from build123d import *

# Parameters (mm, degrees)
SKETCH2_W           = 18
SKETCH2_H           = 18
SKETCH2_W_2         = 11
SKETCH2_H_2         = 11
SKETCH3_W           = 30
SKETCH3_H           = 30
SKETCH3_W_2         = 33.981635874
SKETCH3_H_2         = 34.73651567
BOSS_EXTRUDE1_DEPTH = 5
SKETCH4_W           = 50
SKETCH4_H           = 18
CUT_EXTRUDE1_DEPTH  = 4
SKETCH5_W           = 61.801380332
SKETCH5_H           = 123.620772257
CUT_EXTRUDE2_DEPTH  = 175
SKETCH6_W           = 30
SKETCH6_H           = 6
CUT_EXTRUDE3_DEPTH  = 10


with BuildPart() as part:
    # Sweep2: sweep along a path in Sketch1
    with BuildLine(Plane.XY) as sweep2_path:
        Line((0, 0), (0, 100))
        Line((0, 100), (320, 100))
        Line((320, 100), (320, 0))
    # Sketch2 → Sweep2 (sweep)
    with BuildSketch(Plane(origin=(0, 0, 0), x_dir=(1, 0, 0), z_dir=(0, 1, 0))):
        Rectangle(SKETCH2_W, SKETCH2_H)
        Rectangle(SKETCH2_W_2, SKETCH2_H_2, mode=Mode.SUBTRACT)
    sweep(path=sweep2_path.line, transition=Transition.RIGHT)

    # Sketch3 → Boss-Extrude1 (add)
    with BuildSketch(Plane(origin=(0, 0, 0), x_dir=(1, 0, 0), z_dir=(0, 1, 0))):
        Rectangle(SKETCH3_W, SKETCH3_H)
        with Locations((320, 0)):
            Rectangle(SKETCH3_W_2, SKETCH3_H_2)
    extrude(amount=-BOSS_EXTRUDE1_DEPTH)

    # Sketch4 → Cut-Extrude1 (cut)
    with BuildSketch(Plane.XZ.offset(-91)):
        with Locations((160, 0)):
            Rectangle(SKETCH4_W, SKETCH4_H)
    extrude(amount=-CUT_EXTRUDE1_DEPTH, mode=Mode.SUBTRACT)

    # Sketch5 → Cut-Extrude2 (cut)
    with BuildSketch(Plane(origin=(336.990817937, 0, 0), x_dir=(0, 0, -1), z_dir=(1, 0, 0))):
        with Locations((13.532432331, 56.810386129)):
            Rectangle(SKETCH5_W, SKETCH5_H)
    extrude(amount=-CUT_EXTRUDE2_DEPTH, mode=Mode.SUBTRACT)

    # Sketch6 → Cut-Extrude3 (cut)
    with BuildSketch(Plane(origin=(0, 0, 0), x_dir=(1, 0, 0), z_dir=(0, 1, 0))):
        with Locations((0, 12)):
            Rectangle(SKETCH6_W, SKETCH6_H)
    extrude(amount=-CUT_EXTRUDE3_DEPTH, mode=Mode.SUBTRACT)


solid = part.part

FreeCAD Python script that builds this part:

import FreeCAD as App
import Part
import Sketcher
from FreeCAD import Vector


def add_polygon(sketch, points):
    """Adds a closed chain of lines whose ends are joined by coincident constraints."""
    first, n = sketch.GeometryCount, len(points)
    for a, b in zip(points, points[1:] + points[:1]):
        sketch.addGeometry(Part.LineSegment(App.Vector(*a, 0), App.Vector(*b, 0)), False)
    for i in range(n):
        sketch.addConstraint(Sketcher.Constraint("Coincident", first + i, 2, first + (i + 1) % n, 1))

doc = App.newDocument("Part")
params = doc.addObject("Spreadsheet::Sheet", "Params")
for row, (alias, value) in enumerate([
    ("sketch1_width", "18 mm"),
    ("sketch1_width2", "11 mm"),
    ("sketch2_width", "320 mm"),
    ("sketch2_height", "100 mm"),
    ("sketch3_width", "30 mm"),
    ("pad1_length", "5 mm"),
    ("sketch4_width", "50 mm"),
    ("sketch4_height", "18 mm"),
    ("pocket1_length", "4 mm"),
    ("pocket2_length", "175 mm"),
    ("sketch6_width", "30 mm"),
    ("sketch6_height", "6 mm"),
    ("pocket3_length", "10 mm"),
], start=1):
    params.set(f"A{row}", alias)
    params.set(f"B{row}", "=" + value)
    params.setAlias(f"B{row}", alias)

body = doc.addObject("PartDesign::Body", "Body")

sketch1 = body.newObject("Sketcher::SketchObject", "Sketch")
sketch1.AttachmentSupport = (doc.getObject("XZ_Plane"), [""])
sketch1.MapMode = "FlatFace"
add_polygon(sketch1, [(-9, -9), (-9, 9), (9, 9), (9, -9)])
add_polygon(sketch1, [(6, 6), (-6, 6), (-6, -6), (6, -6)])
sketch1.addConstraint(Sketcher.Constraint("Vertical", 0))
sketch1.addConstraint(Sketcher.Constraint("Horizontal", 1))
sketch1.addConstraint(Sketcher.Constraint("Vertical", 2))
sketch1.addConstraint(Sketcher.Constraint("Horizontal", 3))
sketch1.addConstraint(Sketcher.Constraint("Horizontal", 4))
sketch1.addConstraint(Sketcher.Constraint("Vertical", 5))
sketch1.addConstraint(Sketcher.Constraint("Horizontal", 6))
sketch1.addConstraint(Sketcher.Constraint("Vertical", 7))
sketch1.addConstraint(Sketcher.Constraint("Symmetric", 0, 2, 2, 2, -1, 1))
sketch1.addConstraint(Sketcher.Constraint("Symmetric", 4, 2, 6, 2, -1, 1))
sketch1.addConstraint(Sketcher.Constraint("Equal", 3, 0))
sketch1.addConstraint(Sketcher.Constraint("Equal", 6, 5))
sketch1.addConstraint(Sketcher.Constraint("DistanceX", 1, 1, 1, 2, 18.0))
sketch1.addConstraint(Sketcher.Constraint("DistanceX", 4, 2, 4, 1, 11.0))
sketch1.setExpression("Constraints[20]", "Params.sketch1_width")
sketch1.setExpression("Constraints[21]", "Params.sketch1_width2")

sketch2 = body.newObject("Sketcher::SketchObject", "Sketch001")
sketch2.AttachmentSupport = (doc.getObject("XY_Plane"), [""])
sketch2.MapMode = "FlatFace"
sketch2.addGeometry(Part.LineSegment(Vector(0, 0, 0), Vector(0, 100, 0)), False)
sketch2.addGeometry(Part.LineSegment(Vector(0, 100, 0), Vector(320, 100, 0)), False)
sketch2.addGeometry(Part.LineSegment(Vector(320, 100, 0), Vector(320, 0, 0)), False)
sketch2.addConstraint(Sketcher.Constraint("Coincident", 0, 2, 1, 1))
sketch2.addConstraint(Sketcher.Constraint("Coincident", 1, 2, 2, 1))
sketch2.addConstraint(Sketcher.Constraint("Vertical", 0))
sketch2.addConstraint(Sketcher.Constraint("Horizontal", 1))
sketch2.addConstraint(Sketcher.Constraint("Vertical", 2))
sketch2.addConstraint(Sketcher.Constraint("Coincident", 0, 1, -1, 1))
sketch2.addConstraint(Sketcher.Constraint("PointOnObject", 2, 2, -1))
sketch2.addConstraint(Sketcher.Constraint("DistanceX", 1, 1, 1, 2, 320.0))
sketch2.addConstraint(Sketcher.Constraint("DistanceY", 0, 1, 0, 2, 100.0))
sketch2.setExpression("Constraints[7]", "Params.sketch2_width")
sketch2.setExpression("Constraints[8]", "Params.sketch2_height")
doc.recompute()

additivepipe = body.newObject("PartDesign::AdditivePipe", "AdditivePipe")
additivepipe.Profile = sketch1
additivepipe.Spine = (sketch2, ["Edge1", "Edge2", "Edge3"])
additivepipe.Transition = "Right corner"

sketch3 = body.newObject("Sketcher::SketchObject", "Sketch002")
sketch3.AttachmentSupport = (doc.getObject("XZ_Plane"), [""])
sketch3.MapMode = "FlatFace"
add_polygon(sketch3, [(-15, -15), (-15, 15), (15, 15), (15, -15)])
add_polygon(sketch3, [(303, -17), (303, 17), (337, 17), (337, -17)])
sketch3.addConstraint(Sketcher.Constraint("Vertical", 0))
sketch3.addConstraint(Sketcher.Constraint("Horizontal", 1))
sketch3.addConstraint(Sketcher.Constraint("Vertical", 2))
sketch3.addConstraint(Sketcher.Constraint("Horizontal", 3))
sketch3.addConstraint(Sketcher.Constraint("Vertical", 4))
sketch3.addConstraint(Sketcher.Constraint("Horizontal", 5))
sketch3.addConstraint(Sketcher.Constraint("Vertical", 6))
sketch3.addConstraint(Sketcher.Constraint("Horizontal", 7))
sketch3.addConstraint(Sketcher.Constraint("Symmetric", 0, 2, 2, 2, -1, 1))
sketch3.addConstraint(Sketcher.Constraint("Equal", 3, 0))
sketch3.addConstraint(Sketcher.Constraint("DistanceX", 1, 1, 1, 2, 30.0))
sketch3.addConstraint(Sketcher.Constraint("DistanceX", 5, 1, 5, 2, 33.981636))
sketch3.addConstraint(Sketcher.Constraint("DistanceY", 4, 1, 4, 2, 34.736516))
sketch3.addConstraint(Sketcher.Constraint("DistanceX", -1, 1, 4, 2, 303.009182))
sketch3.addConstraint(Sketcher.Constraint("DistanceY", -1, 1, 4, 2, 17.368258))
sketch3.setExpression("Constraints[18]", "Params.sketch3_width")
pad1 = body.newObject("PartDesign::Pad", "Pad")
pad1.Profile = sketch3
pad1.setExpression("Length", "Params.pad1_length")

sketch4 = body.newObject("Sketcher::SketchObject", "Sketch003")
sketch4.AttachmentSupport = (doc.getObject("XZ_Plane"), [""])
sketch4.MapMode = "FlatFace"
sketch4.AttachmentOffset = App.Placement(Vector(0, 0, -91), App.Rotation())
add_polygon(sketch4, [(135, 9), (135, -9), (185, -9), (185, 9)])
sketch4.addConstraint(Sketcher.Constraint("Vertical", 0))
sketch4.addConstraint(Sketcher.Constraint("Horizontal", 1))
sketch4.addConstraint(Sketcher.Constraint("Vertical", 2))
sketch4.addConstraint(Sketcher.Constraint("Horizontal", 3))
sketch4.addConstraint(Sketcher.Constraint("DistanceX", 1, 1, 1, 2, 50.0))
sketch4.addConstraint(Sketcher.Constraint("DistanceY", 0, 2, 0, 1, 18.0))
sketch4.addConstraint(Sketcher.Constraint("DistanceX", -1, 1, 0, 2, 135.0))
sketch4.addConstraint(Sketcher.Constraint("DistanceY", 0, 2, -1, 1, 9.0))
sketch4.setExpression("Constraints[8]", "Params.sketch4_width")
sketch4.setExpression("Constraints[9]", "Params.sketch4_height")
pocket1 = body.newObject("PartDesign::Pocket", "Pocket")
pocket1.Profile = sketch4
pocket1.setExpression("Length", "Params.pocket1_length")

sketch5 = body.newObject("Sketcher::SketchObject", "Sketch004")
sketch5.AttachmentSupport = (doc.getObject("YZ_Plane"), [""])
sketch5.MapMode = "FlatFace"
sketch5.AttachmentOffset = App.Placement(Vector(0, 0, 336.990818), App.Rotation())
add_polygon(sketch5, [(119, 17), (-5, 17), (-5, -44), (119, -44)])
sketch5.addConstraint(Sketcher.Constraint("Horizontal", 0))
sketch5.addConstraint(Sketcher.Constraint("Vertical", 1))
sketch5.addConstraint(Sketcher.Constraint("Horizontal", 2))
sketch5.addConstraint(Sketcher.Constraint("Vertical", 3))
sketch5.addConstraint(Sketcher.Constraint("DistanceX", 0, 2, -1, 1, 5.0))
sketch5.addConstraint(Sketcher.Constraint("DistanceY", 1, 2, 1, 1, 61.80138))
sketch5.addConstraint(Sketcher.Constraint("DistanceX", 0, 2, 0, 1, 123.620772))
sketch5.addConstraint(Sketcher.Constraint("DistanceY", -1, 1, 0, 2, 17.368258))
pocket2 = body.newObject("PartDesign::Pocket", "Pocket001")
pocket2.Profile = sketch5
pocket2.setExpression("Length", "Params.pocket2_length")

sketch6 = body.newObject("Sketcher::SketchObject", "Sketch005")
sketch6.AttachmentSupport = (doc.getObject("XZ_Plane"), [""])
sketch6.MapMode = "FlatFace"
add_polygon(sketch6, [(-15, -15), (-15, -9), (15, -9), (15, -15)])
sketch6.addConstraint(Sketcher.Constraint("Vertical", 0))
sketch6.addConstraint(Sketcher.Constraint("Horizontal", 1))
sketch6.addConstraint(Sketcher.Constraint("Vertical", 2))
sketch6.addConstraint(Sketcher.Constraint("Horizontal", 3))
sketch6.addConstraint(Sketcher.Constraint("DistanceX", 1, 1, 1, 2, 30.0))
sketch6.addConstraint(Sketcher.Constraint("DistanceY", 0, 1, 0, 2, 6.0))
sketch6.addConstraint(Sketcher.Constraint("DistanceX", 0, 2, -1, 1, 15.0))
sketch6.addConstraint(Sketcher.Constraint("DistanceY", 0, 2, -1, 1, 9.0))
sketch6.setExpression("Constraints[8]", "Params.sketch6_width")
sketch6.setExpression("Constraints[9]", "Params.sketch6_height")
pocket3 = body.newObject("PartDesign::Pocket", "Pocket002")
pocket3.Profile = sketch6
pocket3.setExpression("Length", "Params.pocket3_length")
pocket3.Reversed = True

doc.recompute()
